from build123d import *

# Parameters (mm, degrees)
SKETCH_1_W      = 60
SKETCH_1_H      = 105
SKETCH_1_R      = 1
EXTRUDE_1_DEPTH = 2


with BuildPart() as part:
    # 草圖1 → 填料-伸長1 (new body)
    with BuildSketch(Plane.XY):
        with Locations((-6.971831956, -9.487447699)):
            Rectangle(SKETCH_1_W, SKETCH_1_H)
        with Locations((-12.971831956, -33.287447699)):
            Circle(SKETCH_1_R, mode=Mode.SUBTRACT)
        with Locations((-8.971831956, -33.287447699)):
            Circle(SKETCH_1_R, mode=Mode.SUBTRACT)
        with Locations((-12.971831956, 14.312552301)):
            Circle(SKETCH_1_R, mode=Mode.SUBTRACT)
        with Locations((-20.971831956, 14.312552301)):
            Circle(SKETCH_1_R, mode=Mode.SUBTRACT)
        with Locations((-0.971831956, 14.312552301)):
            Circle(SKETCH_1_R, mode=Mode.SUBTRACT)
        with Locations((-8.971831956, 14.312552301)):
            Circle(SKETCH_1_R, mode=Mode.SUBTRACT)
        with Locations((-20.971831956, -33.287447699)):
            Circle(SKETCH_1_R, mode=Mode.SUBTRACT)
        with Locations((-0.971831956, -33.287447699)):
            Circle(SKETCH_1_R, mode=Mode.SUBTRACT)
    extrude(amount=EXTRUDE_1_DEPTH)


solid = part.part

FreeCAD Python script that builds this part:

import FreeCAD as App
import Part
import Sketcher
from FreeCAD import Vector

doc = App.newDocument("Part")
body = doc.addObject("PartDesign::Body", "Body")

# Sketch on XY plane
sketch1 = body.newObject("Sketcher::SketchObject", "Sketch")
sketch1.AttachmentSupport = (doc.getObject("XY_Plane"), [""])
sketch1.MapMode = "FlatFace"
sketch1.addGeometry(Part.LineSegment(Vector(-37, 43, 0), Vector(-37, -62, 0)), False)
sketch1.addGeometry(Part.LineSegment(Vector(-37, -62, 0), Vector(23, -62, 0)), False)
sketch1.addGeometry(Part.LineSegment(Vector(23, -62, 0), Vector(23, 43, 0)), False)
sketch1.addGeometry(Part.LineSegment(Vector(23, 43, 0), Vector(-37, 43, 0)), False)
sketch1.addGeometry(Part.Circle(Vector(-21, -33.3, 0), Vector(0, 0, 1), 1), False)
sketch1.addGeometry(Part.Circle(Vector(-13, -33.3, 0), Vector(0, 0, 1), 1), False)
sketch1.addGeometry(Part.Circle(Vector(-9, -33.3, 0), Vector(0, 0, 1), 1), False)
sketch1.addGeometry(Part.Circle(Vector(-1, -33.3, 0), Vector(0, 0, 1), 1), False)
sketch1.addGeometry(Part.Circle(Vector(-21, 14.3, 0), Vector(0, 0, 1), 1), False)
sketch1.addGeometry(Part.Circle(Vector(-13, 14.3, 0), Vector(0, 0, 1), 1), False)
sketch1.addGeometry(Part.Circle(Vector(-9, 14.3, 0), Vector(0, 0, 1), 1), False)
sketch1.addGeometry(Part.Circle(Vector(-1, 14.3, 0), Vector(0, 0, 1), 1), False)
sketch1.addConstraint(Sketcher.Constraint("Coincident", 0, 2, 1, 1))
sketch1.addConstraint(Sketcher.Constraint("Coincident", 1, 2, 2, 1))
sketch1.addConstraint(Sketcher.Constraint("Coincident", 2, 2, 3, 1))
sketch1.addConstraint(Sketcher.Constraint("Coincident", 3, 2, 0, 1))
sketch1.addConstraint(Sketcher.Constraint("Vertical", 0))
sketch1.addConstraint(Sketcher.Constraint("Horizontal", 1))
sketch1.addConstraint(Sketcher.Constraint("Vertical", 2))
sketch1.addConstraint(Sketcher.Constraint("Horizontal", 3))
sketch1.addConstraint(Sketcher.Constraint("Equal", 4, 5))
sketch1.addConstraint(Sketcher.Constraint("Equal", 5, 6))
sketch1.addConstraint(Sketcher.Constraint("Equal", 6, 7))
sketch1.addConstraint(Sketcher.Constraint("Equal", 7, 8))
sketch1.addConstraint(Sketcher.Constraint("Equal", 8, 9))
sketch1.addConstraint(Sketcher.Constraint("Equal", 9, 10))
sketch1.addConstraint(Sketcher.Constraint("Equal", 10, 11))
sketch1.addConstraint(Sketcher.Constraint("Horizontal", 4, 3, 5, 3))
sketch1.addConstraint(Sketcher.Constraint("Horizontal", 5, 3, 6, 3))
sketch1.addConstraint(Sketcher.Constraint("Horizontal", 6, 3, 7, 3))
sketch1.addConstraint(Sketcher.Constraint("Horizontal", 8, 3, 9, 3))
sketch1.addConstraint(Sketcher.Constraint("Horizontal", 9, 3, 10, 3))
sketch1.addConstraint(Sketcher.Constraint("Horizontal", 10, 3, 11, 3))
sketch1.addConstraint(Sketcher.Constraint("Vertical", 4, 3, 8, 3))
sketch1.addConstraint(Sketcher.Constraint("Vertical", 5, 3, 9, 3))
sketch1.addConstraint(Sketcher.Constraint("Vertical", 6, 3, 10, 3))
sketch1.addConstraint(Sketcher.Constraint("Vertical", 7, 3, 11, 3))
sketch1.addConstraint(Sketcher.Constraint("Diameter", 4, 2.0))
sketch1.addConstraint(Sketcher.Constraint("DistanceX", 1, 1, 1, 2, 60.0))
sketch1.addConstraint(Sketcher.Constraint("DistanceY", 0, 2, 0, 1, 105.0))
sketch1.addConstraint(Sketcher.Constraint("DistanceX", 4, 3, 5, 3, 8.0))
sketch1.addConstraint(Sketcher.Constraint("DistanceX", 5, 3, 6, 3, 4.0))
sketch1.addConstraint(Sketcher.Constraint("DistanceX", 6, 3, 7, 3, 8.0))
sketch1.addConstraint(Sketcher.Constraint("DistanceX", 0, 2, 4, 3, 16.0))
sketch1.addConstraint(Sketcher.Constraint("DistanceY", 4, 3, 8, 3, 47.6))
sketch1.addConstraint(Sketcher.Constraint("DistanceY", 0, 2, 4, 3, 28.7))
sketch1.addConstraint(Sketcher.Constraint("DistanceX", 4, 3, -1, 1, 20.971832))
sketch1.addConstraint(Sketcher.Constraint("DistanceY", 4, 3, -1, 1, 33.287448))
pad1 = body.newObject("PartDesign::Pad", "Pad")
pad1.Profile = sketch1
pad1.Length = 2

doc.recompute()
